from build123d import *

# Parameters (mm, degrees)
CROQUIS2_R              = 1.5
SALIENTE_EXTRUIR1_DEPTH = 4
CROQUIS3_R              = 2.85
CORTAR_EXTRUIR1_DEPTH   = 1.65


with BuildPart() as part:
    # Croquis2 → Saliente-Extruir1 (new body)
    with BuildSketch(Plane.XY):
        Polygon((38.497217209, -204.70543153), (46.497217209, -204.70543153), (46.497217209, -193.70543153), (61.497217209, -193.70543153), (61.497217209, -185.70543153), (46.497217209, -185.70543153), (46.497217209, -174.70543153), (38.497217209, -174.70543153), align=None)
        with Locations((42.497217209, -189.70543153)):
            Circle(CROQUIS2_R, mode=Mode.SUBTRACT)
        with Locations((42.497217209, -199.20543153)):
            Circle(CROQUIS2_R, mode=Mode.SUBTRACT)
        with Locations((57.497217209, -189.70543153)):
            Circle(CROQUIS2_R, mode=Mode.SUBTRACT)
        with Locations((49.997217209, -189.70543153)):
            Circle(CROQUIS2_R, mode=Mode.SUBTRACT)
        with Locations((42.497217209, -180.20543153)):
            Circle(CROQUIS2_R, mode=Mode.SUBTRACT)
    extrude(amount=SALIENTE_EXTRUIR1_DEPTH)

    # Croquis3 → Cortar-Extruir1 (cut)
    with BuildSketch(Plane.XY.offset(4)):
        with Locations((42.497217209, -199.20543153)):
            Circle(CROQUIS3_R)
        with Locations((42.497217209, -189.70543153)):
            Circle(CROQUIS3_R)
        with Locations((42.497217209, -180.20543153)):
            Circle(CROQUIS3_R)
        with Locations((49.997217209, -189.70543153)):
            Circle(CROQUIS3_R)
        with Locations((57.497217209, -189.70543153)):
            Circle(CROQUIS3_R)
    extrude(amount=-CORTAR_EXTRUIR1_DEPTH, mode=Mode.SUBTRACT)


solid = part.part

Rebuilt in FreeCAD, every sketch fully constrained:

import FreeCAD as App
import Part
import Sketcher

V = App.Vector
Q = App.Units.Quantity


def add_polygon(sketch, points):
    """Adds a closed chain of lines whose ends are joined by coincident constraints."""
    first, n = sketch.GeometryCount, len(points)
    for a, b in zip(points, points[1:] + points[:1]):
        sketch.addGeometry(Part.LineSegment(App.Vector(*a, 0), App.Vector(*b, 0)), False)
    for i in range(n):
        sketch.addConstraint(Sketcher.Constraint("Coincident", first + i, 2, first + (i + 1) % n, 1))

doc = App.newDocument("Part")
params = doc.addObject("Spreadsheet::Sheet", "Params")
for row, (alias, value) in enumerate([
    ("sketch1_diameter", "3 mm"),
    ("sketch1_width", "8 mm"),
    ("sketch1_width2", "15 mm"),
    ("sketch1_height", "11 mm"),
    ("pad1_length", "4 mm"),
    ("sketch2_diameter", "5.7 mm"),
    ("pocket1_length", "1.65 mm"),
], start=1):
    params.set(f"A{row}", alias)
    params.set(f"B{row}", "=" + value)
    params.setAlias(f"B{row}", alias)

body = doc.addObject("PartDesign::Body", "Body")

# Sketch on XY plane
sketch1 = body.newObject("Sketcher::SketchObject", "Sketch")
sketch1.AttachmentSupport = (doc.getObject("XY_Plane"), [""])
sketch1.MapMode = "FlatFace"
add_polygon(sketch1, [(38.5, -204.7), (46.5, -204.7), (46.5, -193.7), (61.5, -193.7), (61.5, -185.7), (46.5, -185.7), (46.5, -174.7), (38.5, -174.7)])  # lines 0-7
sketch1.addGeometry(Part.Circle(V(42.5, -199.2, 0), V(0, 0, 1), 1.5), False)  # 8
sketch1.addGeometry(Part.Circle(V(42.5, -189.7, 0), V(0, 0, 1), 1.5), False)  # 9
sketch1.addGeometry(Part.Circle(V(42.5, -180.2, 0), V(0, 0, 1), 1.5), False)  # 10
sketch1.addGeometry(Part.Circle(V(50, -189.7, 0), V(0, 0, 1), 1.5), False)  # 11
sketch1.addGeometry(Part.Circle(V(57.5, -189.7, 0), V(0, 0, 1), 1.5), False)  # 12
sketch1.addConstraint([
    Sketcher.Constraint("Horizontal", 0),
    Sketcher.Constraint("Vertical", 1),
    Sketcher.Constraint("Horizontal", 2),
    Sketcher.Constraint("Vertical", 3),
    Sketcher.Constraint("Horizontal", 4),
    Sketcher.Constraint("Vertical", 5),
    Sketcher.Constraint("Horizontal", 6),
    Sketcher.Constraint("Vertical", 7),
    Sketcher.Constraint("Equal", 8, 9),
    Sketcher.Constraint("Equal", 9, 10),
    Sketcher.Constraint("Equal", 10, 11),
    Sketcher.Constraint("Equal", 11, 12),
    Sketcher.Constraint("Horizontal", 9, 3, 11, 3),
    Sketcher.Constraint("Horizontal", 11, 3, 12, 3),
    Sketcher.Constraint("Vertical", 8, 3, 9, 3),
    Sketcher.Constraint("Vertical", 9, 3, 10, 3),
    Sketcher.Constraint("Vertical", 1, 2, 4, 2),
    Sketcher.Constraint("Equal", 6, 3),
    Sketcher.Constraint("Equal", 1, 5),
    Sketcher.Constraint("Diameter", 8, Q("3 mm")),
    Sketcher.Constraint("DistanceX", 0, 1, 0, 2, Q("8 mm")),
    Sketcher.Constraint("DistanceX", 2, 1, 2, 2, Q("15 mm")),
    Sketcher.Constraint("DistanceY", 1, 1, 1, 2, Q("11 mm")),
    Sketcher.Constraint("DistanceY", 8, 3, 10, 3, Q("19 mm")),
    Sketcher.Constraint("DistanceX", 9, 3, 12, 3, Q("15 mm")),
    Sketcher.Constraint("DistanceX", 8, 3, 0, 2, Q("4 mm")),
    Sketcher.Constraint("DistanceY", 0, 2, 11, 3, Q("15 mm")),
    Sketcher.Constraint("DistanceY", 8, 3, 9, 3, Q("9.5 mm")),
    Sketcher.Constraint("DistanceX", 9, 3, 11, 3, Q("7.5 mm")),
    Sketcher.Constraint("DistanceY", 8, 3, -1, 1, Q("199.205432 mm")),
    Sketcher.Constraint("DistanceX", -1, 1, 8, 3, Q("42.497217 mm")),
])
sketch1.setExpression("Constraints[27]", "Params.sketch1_diameter")
sketch1.setExpression("Constraints[28]", "Params.sketch1_width")
sketch1.setExpression("Constraints[29]", "Params.sketch1_width2")
sketch1.setExpression("Constraints[30]", "Params.sketch1_height")
pad1 = body.newObject("PartDesign::Pad", "Pad")
pad1.Profile = sketch1
pad1.setExpression("Length", "Params.pad1_length")

# Sketch on XY plane
sketch2 = body.newObject("Sketcher::SketchObject", "Sketch001")
sketch2.AttachmentSupport = (doc.getObject("XY_Plane"), [""])
sketch2.MapMode = "FlatFace"
sketch2.AttachmentOffset = App.Placement(V(0, 0, 4), App.Rotation())
sketch2.addGeometry([
    Part.Circle(V(42.5, -199.2, 0), V(0, 0, 1), 2.9),  # 0
    Part.Circle(V(42.5, -189.7, 0), V(0, 0, 1), 2.9),  # 1
    Part.Circle(V(42.5, -180.2, 0), V(0, 0, 1), 2.9),  # 2
    Part.Circle(V(50, -189.7, 0), V(0, 0, 1), 2.9),  # 3
    Part.Circle(V(57.5, -189.7, 0), V(0, 0, 1), 2.9),  # 4
], False)
sketch2.addConstraint([
    Sketcher.Constraint("Equal", 0, 1),
    Sketcher.Constraint("Equal", 1, 2),
    Sketcher.Constraint("Equal", 2, 3),
    Sketcher.Constraint("Equal", 3, 4),
    Sketcher.Constraint("Horizontal", 1, 3, 3, 3),
    Sketcher.Constraint("Horizontal", 3, 3, 4, 3),
    Sketcher.Constraint("Vertical", 0, 3, 1, 3),
    Sketcher.Constraint("Vertical", 1, 3, 2, 3),
    Sketcher.Constraint("Diameter", 0, Q("5.7 mm")),
    Sketcher.Constraint("DistanceY", 0, 3, 2, 3, Q("19 mm")),
    Sketcher.Constraint("DistanceX", 1, 3, 4, 3, Q("15 mm")),
    Sketcher.Constraint("DistanceY", 0, 3, 1, 3, Q("9.5 mm")),
    Sketcher.Constraint("DistanceX", 1, 3, 3, 3, Q("7.5 mm")),
    Sketcher.Constraint("DistanceY", 0, 3, -1, 1, Q("199.205432 mm")),
    Sketcher.Constraint("DistanceX", -1, 1, 0, 3, Q("42.497217 mm")),
])
sketch2.setExpression("Constraints[8]", "Params.sketch2_diameter")
pocket1 = body.newObject("PartDesign::Pocket", "Pocket")
pocket1.Profile = sketch2
pocket1.setExpression("Length", "Params.pocket1_length")

doc.recompute()
